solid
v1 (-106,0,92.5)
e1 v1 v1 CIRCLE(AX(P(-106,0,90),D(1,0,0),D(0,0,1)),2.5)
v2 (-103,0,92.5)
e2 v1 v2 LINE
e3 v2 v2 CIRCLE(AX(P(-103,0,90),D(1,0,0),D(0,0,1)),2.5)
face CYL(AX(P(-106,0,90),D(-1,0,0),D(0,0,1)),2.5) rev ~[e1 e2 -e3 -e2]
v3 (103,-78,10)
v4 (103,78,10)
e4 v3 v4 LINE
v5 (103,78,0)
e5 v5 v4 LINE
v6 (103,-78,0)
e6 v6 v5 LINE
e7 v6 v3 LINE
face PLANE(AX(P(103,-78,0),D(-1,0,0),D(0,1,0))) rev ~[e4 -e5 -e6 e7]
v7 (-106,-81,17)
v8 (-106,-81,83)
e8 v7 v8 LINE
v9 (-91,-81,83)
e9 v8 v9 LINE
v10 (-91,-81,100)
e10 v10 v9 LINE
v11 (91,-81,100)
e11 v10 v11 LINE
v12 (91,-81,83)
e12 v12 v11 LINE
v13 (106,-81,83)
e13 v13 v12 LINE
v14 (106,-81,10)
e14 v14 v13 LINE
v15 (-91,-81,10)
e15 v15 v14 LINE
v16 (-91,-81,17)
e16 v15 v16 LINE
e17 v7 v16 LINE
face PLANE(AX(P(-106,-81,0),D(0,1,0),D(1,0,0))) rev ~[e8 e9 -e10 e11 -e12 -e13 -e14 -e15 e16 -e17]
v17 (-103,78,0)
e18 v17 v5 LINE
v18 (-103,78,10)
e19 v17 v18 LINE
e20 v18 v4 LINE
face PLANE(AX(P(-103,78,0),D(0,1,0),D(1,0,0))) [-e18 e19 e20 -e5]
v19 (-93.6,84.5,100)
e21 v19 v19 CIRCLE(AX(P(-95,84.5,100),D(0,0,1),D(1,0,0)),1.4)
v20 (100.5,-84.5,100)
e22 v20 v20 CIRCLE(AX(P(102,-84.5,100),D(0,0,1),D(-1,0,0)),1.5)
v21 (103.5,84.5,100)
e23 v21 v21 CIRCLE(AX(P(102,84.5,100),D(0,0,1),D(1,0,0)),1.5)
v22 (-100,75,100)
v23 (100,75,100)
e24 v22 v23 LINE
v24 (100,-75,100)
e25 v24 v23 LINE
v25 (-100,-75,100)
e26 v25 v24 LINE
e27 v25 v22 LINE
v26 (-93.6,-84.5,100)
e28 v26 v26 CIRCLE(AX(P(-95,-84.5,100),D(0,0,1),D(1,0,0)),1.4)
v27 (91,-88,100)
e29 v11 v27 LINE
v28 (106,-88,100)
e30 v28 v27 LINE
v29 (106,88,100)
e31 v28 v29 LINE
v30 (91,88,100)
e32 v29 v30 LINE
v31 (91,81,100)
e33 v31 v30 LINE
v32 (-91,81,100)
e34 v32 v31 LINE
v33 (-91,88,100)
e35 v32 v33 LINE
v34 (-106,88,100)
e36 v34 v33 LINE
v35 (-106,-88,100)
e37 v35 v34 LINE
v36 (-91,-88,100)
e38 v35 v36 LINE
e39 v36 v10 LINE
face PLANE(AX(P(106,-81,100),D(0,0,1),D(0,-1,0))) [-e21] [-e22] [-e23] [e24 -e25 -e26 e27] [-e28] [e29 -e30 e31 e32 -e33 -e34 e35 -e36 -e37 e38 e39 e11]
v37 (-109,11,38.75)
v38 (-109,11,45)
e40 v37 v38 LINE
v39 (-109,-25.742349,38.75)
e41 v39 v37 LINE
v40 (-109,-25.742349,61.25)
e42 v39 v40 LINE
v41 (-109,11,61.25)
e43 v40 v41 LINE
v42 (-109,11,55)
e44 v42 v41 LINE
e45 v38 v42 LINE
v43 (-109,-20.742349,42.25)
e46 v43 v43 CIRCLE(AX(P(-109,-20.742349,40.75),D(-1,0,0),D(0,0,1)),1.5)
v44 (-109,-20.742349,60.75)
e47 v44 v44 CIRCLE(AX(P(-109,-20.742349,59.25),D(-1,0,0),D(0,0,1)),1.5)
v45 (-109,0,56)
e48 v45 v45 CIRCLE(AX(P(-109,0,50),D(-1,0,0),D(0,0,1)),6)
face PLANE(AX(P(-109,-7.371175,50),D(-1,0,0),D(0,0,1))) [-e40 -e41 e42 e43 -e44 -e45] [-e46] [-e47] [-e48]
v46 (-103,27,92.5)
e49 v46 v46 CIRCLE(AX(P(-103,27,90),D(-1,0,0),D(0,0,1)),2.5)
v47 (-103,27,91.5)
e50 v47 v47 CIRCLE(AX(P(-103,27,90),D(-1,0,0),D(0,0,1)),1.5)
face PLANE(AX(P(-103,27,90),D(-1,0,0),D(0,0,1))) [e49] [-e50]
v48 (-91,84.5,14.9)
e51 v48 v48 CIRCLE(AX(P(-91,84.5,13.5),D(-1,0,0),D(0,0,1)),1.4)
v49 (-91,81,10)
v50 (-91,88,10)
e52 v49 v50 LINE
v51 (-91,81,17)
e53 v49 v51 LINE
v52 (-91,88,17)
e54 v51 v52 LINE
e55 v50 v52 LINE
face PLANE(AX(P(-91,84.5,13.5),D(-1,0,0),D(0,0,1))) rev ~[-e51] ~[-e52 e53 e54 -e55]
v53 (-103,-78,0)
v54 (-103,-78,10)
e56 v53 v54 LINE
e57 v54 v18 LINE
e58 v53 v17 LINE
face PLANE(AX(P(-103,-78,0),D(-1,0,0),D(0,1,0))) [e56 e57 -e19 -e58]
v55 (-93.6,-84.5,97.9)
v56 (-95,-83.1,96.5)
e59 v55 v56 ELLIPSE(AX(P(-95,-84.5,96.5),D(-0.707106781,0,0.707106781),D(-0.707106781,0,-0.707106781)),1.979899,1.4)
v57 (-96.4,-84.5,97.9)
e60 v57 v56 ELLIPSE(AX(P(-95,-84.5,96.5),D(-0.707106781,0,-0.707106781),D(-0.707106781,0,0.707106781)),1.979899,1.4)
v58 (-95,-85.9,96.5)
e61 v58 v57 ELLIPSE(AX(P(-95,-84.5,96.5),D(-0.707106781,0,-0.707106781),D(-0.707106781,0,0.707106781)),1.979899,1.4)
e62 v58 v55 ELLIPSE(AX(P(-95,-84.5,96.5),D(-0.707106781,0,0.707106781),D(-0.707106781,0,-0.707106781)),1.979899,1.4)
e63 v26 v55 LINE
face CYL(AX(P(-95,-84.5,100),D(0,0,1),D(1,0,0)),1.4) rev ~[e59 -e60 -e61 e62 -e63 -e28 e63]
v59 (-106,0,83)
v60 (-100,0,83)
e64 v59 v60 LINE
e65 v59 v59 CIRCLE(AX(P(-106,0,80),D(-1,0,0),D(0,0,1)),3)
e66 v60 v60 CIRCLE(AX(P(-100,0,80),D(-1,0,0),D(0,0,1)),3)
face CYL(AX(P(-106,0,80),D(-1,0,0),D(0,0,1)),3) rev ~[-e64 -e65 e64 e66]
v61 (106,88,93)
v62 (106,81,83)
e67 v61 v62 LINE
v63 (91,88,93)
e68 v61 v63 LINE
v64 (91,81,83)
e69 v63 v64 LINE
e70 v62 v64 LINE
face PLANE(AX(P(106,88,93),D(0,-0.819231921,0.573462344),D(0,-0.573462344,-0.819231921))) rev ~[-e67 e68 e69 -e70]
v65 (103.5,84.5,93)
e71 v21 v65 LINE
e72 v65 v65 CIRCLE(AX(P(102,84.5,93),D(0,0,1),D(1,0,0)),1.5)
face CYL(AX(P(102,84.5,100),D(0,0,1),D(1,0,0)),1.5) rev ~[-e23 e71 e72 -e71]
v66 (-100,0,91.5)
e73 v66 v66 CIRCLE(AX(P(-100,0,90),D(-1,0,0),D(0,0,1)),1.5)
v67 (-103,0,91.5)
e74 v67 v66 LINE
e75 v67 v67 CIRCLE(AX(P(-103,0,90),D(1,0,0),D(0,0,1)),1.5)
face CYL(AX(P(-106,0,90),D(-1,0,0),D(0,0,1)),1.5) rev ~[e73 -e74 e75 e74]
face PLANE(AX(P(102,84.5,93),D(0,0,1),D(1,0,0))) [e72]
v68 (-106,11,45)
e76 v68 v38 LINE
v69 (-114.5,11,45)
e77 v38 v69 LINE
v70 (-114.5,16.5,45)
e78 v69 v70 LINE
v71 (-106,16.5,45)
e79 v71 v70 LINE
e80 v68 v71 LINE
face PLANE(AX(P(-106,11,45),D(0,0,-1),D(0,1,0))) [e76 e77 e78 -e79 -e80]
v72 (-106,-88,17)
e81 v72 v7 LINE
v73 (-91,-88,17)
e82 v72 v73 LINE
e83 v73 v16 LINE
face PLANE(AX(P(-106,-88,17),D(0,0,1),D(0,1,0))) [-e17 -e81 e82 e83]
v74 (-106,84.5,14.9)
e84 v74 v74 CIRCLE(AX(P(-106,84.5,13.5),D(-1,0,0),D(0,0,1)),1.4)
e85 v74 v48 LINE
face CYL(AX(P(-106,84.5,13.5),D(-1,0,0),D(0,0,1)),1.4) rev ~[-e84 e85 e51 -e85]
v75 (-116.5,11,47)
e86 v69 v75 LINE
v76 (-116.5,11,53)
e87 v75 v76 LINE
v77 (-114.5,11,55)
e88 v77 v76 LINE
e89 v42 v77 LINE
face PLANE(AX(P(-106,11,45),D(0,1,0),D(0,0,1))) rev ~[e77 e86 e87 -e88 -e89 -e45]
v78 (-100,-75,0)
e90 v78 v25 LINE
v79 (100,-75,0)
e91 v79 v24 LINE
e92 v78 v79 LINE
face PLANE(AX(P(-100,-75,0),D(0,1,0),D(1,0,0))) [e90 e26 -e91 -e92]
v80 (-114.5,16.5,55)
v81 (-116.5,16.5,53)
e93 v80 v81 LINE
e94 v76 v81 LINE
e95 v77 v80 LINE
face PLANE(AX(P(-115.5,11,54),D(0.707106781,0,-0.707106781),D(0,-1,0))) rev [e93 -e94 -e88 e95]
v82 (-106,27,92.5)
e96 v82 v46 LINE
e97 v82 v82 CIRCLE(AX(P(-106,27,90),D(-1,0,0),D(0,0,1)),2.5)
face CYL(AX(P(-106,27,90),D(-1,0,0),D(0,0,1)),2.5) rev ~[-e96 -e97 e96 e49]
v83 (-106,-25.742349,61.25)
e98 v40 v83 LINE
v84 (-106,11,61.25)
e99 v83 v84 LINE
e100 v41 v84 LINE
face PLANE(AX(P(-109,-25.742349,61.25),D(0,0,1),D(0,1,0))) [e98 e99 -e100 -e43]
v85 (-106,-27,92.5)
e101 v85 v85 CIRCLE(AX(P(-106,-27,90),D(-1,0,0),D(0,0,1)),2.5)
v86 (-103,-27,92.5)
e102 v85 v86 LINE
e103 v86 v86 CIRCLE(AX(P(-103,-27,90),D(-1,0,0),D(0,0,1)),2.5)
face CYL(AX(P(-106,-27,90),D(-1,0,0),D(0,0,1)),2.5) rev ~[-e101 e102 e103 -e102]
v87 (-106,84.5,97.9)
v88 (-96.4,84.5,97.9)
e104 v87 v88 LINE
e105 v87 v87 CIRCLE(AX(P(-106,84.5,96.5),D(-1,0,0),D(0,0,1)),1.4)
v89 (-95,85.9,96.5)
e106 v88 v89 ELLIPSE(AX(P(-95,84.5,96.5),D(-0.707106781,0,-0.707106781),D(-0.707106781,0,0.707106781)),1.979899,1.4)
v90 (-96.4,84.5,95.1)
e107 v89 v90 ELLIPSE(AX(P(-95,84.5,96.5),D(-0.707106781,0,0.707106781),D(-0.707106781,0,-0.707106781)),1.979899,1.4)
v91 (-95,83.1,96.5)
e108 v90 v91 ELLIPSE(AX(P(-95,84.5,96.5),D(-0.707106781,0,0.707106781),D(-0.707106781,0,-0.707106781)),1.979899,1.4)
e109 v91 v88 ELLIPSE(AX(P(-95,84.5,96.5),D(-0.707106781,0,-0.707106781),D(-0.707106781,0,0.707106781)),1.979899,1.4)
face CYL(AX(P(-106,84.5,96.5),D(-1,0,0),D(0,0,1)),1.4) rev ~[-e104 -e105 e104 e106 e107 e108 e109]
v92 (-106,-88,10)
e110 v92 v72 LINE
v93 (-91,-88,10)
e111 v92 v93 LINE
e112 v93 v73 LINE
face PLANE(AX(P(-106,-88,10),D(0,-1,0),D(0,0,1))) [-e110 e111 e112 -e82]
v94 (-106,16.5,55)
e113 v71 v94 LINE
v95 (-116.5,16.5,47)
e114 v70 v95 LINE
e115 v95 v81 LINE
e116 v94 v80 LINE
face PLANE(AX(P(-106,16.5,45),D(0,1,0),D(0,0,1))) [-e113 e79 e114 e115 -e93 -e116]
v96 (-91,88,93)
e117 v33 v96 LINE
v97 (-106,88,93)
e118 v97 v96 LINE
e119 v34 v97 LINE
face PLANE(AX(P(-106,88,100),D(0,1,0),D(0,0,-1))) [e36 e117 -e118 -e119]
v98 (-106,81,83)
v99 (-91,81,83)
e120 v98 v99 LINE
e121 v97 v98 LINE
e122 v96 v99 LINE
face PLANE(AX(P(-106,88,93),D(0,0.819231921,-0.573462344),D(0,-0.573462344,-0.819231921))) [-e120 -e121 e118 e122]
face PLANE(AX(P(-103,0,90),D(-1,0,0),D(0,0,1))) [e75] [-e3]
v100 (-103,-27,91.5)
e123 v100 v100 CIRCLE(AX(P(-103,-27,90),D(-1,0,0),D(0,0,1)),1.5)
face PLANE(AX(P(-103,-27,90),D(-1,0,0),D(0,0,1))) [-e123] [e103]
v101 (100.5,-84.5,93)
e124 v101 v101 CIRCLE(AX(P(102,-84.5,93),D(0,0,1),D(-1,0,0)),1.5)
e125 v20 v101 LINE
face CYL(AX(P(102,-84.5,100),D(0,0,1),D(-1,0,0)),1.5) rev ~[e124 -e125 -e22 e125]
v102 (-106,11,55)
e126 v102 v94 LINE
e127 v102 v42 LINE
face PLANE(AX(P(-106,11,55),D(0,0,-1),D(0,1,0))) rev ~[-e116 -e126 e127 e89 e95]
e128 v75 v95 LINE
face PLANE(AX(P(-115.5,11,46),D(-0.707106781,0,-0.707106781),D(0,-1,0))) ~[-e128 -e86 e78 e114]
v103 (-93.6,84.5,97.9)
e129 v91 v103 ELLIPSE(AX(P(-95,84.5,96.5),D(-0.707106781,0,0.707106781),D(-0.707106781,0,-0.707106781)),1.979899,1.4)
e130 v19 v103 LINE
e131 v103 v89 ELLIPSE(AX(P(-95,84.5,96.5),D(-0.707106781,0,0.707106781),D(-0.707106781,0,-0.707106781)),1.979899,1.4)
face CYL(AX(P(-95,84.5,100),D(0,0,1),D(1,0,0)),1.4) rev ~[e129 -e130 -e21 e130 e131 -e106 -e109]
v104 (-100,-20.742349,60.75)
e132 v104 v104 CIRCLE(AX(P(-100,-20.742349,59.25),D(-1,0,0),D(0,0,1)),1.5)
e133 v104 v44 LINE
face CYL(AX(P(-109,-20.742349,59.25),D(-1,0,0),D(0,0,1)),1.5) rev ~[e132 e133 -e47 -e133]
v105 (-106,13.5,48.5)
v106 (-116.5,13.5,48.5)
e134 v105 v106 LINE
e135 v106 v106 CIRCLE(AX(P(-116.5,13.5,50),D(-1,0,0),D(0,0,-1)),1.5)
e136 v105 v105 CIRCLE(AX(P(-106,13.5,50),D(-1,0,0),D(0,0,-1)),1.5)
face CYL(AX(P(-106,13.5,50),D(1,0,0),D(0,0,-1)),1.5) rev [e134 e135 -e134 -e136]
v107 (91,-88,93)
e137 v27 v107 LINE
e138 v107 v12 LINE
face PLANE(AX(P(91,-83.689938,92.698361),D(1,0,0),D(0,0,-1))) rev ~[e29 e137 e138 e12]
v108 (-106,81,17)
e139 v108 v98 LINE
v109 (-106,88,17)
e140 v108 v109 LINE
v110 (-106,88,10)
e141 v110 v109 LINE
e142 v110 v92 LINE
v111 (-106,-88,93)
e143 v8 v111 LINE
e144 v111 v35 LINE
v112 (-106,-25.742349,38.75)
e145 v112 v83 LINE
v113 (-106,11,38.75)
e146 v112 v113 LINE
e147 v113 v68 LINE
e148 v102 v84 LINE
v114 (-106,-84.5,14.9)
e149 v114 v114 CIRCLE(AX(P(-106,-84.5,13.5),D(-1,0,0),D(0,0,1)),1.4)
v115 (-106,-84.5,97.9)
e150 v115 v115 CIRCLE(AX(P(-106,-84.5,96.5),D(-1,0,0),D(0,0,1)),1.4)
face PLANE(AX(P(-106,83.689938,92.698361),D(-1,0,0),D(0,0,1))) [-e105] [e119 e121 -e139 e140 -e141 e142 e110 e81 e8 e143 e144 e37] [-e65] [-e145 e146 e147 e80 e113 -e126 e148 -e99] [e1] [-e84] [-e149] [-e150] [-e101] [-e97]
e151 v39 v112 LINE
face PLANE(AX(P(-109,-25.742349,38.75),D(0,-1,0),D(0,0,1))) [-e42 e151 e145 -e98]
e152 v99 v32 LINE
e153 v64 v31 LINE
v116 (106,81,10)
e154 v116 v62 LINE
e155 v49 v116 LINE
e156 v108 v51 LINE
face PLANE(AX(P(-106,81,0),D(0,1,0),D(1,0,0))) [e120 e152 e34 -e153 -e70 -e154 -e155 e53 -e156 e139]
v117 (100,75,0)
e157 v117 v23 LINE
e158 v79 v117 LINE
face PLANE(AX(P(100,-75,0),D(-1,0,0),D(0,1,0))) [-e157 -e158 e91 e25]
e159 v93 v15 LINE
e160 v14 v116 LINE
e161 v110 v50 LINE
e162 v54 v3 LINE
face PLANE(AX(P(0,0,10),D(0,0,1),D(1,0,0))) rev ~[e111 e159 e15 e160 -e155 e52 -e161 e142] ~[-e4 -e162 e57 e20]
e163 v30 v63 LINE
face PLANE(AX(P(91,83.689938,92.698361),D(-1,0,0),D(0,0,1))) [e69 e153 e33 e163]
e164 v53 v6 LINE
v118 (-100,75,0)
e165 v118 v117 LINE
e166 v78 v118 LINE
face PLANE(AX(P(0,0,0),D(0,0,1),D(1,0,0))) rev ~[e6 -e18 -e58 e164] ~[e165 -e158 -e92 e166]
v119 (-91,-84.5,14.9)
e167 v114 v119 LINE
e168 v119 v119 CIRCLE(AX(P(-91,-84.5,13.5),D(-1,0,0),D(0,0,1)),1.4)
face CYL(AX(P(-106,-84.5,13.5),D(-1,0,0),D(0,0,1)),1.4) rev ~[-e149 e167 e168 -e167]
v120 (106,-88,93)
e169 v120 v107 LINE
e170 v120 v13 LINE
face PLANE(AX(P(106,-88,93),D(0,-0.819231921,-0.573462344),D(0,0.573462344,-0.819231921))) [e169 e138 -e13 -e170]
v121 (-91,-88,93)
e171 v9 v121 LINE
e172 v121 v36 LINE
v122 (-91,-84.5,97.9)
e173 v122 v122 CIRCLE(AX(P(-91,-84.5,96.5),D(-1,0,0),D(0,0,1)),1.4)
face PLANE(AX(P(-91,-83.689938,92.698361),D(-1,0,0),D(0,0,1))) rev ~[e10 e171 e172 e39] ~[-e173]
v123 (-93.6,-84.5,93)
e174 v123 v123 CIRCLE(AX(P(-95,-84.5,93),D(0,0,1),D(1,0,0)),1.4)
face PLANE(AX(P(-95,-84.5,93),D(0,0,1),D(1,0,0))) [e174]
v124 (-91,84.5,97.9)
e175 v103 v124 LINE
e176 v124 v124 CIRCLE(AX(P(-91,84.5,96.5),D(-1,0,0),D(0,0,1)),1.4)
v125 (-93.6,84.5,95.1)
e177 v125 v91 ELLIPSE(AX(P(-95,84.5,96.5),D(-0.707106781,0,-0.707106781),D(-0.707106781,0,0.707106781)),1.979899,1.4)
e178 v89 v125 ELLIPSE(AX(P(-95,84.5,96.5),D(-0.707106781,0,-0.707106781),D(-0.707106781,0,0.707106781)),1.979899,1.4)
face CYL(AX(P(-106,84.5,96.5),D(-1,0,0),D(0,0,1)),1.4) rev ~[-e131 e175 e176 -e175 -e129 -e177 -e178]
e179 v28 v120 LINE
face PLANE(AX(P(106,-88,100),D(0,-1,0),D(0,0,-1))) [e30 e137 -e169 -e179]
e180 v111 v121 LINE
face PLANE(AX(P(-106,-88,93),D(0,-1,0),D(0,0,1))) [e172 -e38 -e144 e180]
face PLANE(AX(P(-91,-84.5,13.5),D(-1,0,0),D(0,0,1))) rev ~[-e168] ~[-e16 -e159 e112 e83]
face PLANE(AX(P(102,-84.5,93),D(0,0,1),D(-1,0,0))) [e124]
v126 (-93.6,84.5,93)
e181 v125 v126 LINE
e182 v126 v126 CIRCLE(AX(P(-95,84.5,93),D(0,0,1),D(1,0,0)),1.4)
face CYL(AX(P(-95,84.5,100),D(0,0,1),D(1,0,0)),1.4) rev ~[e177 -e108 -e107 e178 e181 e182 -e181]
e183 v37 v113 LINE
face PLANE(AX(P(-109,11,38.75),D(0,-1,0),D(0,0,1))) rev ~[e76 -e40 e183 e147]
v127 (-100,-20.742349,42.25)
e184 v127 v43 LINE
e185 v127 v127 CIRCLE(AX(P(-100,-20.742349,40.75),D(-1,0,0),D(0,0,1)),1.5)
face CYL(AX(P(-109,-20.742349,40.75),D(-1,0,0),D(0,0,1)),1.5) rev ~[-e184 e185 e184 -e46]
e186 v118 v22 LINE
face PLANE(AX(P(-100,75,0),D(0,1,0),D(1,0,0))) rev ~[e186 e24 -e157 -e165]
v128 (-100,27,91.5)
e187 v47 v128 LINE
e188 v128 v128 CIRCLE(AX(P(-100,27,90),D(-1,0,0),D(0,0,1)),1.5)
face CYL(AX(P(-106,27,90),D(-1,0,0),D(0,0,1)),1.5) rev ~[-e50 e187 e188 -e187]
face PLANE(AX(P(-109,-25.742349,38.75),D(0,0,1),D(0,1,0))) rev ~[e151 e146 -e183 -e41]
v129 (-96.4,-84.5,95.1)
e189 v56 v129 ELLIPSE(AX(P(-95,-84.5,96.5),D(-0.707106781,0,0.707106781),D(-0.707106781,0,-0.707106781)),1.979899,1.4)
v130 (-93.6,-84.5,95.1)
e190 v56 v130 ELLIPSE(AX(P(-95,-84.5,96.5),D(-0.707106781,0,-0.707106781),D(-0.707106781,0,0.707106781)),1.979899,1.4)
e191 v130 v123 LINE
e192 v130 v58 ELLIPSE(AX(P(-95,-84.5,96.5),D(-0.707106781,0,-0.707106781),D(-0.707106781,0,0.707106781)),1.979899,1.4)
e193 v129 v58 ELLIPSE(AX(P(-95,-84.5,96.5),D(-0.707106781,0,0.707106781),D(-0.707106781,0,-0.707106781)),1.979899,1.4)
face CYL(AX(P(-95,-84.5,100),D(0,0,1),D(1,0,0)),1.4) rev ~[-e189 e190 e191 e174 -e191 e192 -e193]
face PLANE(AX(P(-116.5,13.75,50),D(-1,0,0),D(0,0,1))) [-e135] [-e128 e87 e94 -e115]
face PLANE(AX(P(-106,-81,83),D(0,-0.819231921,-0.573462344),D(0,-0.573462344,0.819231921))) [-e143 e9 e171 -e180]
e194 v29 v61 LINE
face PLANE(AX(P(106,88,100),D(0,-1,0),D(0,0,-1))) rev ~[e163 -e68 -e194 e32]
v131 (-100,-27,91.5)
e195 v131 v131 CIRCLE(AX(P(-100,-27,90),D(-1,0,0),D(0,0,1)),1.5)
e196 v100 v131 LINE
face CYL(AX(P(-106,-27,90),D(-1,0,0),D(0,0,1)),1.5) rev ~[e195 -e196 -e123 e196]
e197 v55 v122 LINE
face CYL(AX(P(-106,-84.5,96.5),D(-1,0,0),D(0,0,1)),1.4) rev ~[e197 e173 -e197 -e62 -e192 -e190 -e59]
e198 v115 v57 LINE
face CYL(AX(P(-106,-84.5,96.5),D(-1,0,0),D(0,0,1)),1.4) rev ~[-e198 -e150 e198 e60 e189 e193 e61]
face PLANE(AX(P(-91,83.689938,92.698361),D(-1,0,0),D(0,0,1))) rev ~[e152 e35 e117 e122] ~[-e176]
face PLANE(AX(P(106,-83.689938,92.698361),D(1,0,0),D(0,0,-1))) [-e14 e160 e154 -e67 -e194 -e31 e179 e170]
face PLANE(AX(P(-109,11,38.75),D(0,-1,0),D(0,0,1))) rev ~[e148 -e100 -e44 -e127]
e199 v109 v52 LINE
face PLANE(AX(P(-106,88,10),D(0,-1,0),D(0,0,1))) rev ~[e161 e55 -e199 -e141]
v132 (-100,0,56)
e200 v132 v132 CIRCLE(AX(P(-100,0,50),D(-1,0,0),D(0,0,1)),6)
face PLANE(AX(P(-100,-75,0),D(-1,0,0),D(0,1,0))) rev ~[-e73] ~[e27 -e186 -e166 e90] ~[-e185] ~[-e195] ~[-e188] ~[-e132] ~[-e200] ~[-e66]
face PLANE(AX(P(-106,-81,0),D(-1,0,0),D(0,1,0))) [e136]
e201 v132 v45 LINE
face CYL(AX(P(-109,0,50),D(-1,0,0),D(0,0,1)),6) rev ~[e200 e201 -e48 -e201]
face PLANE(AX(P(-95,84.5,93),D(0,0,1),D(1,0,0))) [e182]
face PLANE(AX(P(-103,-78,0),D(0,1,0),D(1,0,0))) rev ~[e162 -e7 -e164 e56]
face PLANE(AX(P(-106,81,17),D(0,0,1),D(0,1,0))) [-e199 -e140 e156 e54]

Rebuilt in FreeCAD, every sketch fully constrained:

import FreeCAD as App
import Part
import Sketcher
from FreeCAD import Vector
Q = App.Units.Quantity


def edges_at(feature, points):
    """Names of the edges that pass closest to the given points."""
    edges = feature.Shape.Edges
    near = lambda p: min(range(len(edges)), key=lambda i: edges[i].distToShape(Part.Vertex(*p))[0])
    return sorted({f"Edge{near(p) + 1}" for p in points})

doc = App.newDocument("Part")
params = doc.addObject("Spreadsheet::Sheet", "Params")
for row, (alias, value) in enumerate([
    ("sketch1_width", "212 mm"),
    ("sketch1_width2", "200 mm"),
    ("sketch1_height", "162 mm"),
    ("sketch1_height2", "150 mm"),
    ("pad1_length", "100 mm"),
    ("sketch2_width", "212 mm"),
    ("sketch2_width2", "206 mm"),
    ("sketch2_height", "162 mm"),
    ("sketch2_height2", "156 mm"),
    ("pocket1_length", "10 mm"),
    ("sketch3_diameter", "3 mm"),
    ("sketch3_diameter2", "12 mm"),
    ("pocket2_length", "6 mm"),
    ("sketch4_diameter", "3 mm"),
    ("sketch4_height", "10 mm"),
    ("sketch4_width", "5.5 mm"),
    ("pad2_length", "10.5 mm"),
    ("chamfer_size", "2 mm"),
    ("sketch5_diameter", "3 mm"),
    ("sketch5_diameter2", "12 mm"),
    ("sketch5_height", "22.5 mm"),
    ("pad3_length", "3 mm"),
    ("sketch6_diameter", "3 mm"),
    ("sketch6_diameter2", "6 mm"),
    ("pocket3_length", "6 mm"),
    ("sketch7_diameter", "5 mm"),
    ("sketch7_diameter2", "3 mm"),
    ("pocket4_length", "3 mm"),
    ("sketch8_diameter", "2.8 mm"),
    ("sketch8_width", "7 mm"),
    ("sketch8_height", "17 mm"),
    ("pad4_length", "15 mm"),
    ("sketch9_width", "7 mm"),
    ("sketch9_height", "17 mm"),
    ("pad5_length", "15 mm"),
    ("sketch10_diameter", "3 mm"),
    ("sketch10_diameter2", "2.8 mm"),
    ("pocket5_length", "7 mm"),
], start=1):
    params.set(f"A{row}", alias)
    params.set(f"B{row}", "=" + value)
    params.setAlias(f"B{row}", alias)

body = doc.addObject("PartDesign::Body", "Body")

# Sketch on XY plane
sketch1 = body.newObject("Sketcher::SketchObject", "Sketch")
sketch1.AttachmentSupport = (doc.getObject("XY_Plane"), [""])
sketch1.MapMode = "FlatFace"
sketch1.addGeometry([
    Part.LineSegment(Vector(-106, 81, 0), Vector(-106, -81, 0)),  # 0
    Part.LineSegment(Vector(-106, -81, 0), Vector(106, -81, 0)),  # 1
    Part.LineSegment(Vector(106, -81, 0), Vector(106, 81, 0)),  # 2
    Part.LineSegment(Vector(106, 81, 0), Vector(-106, 81, 0)),  # 3
    Part.LineSegment(Vector(100, -75, 0), Vector(-100, -75, 0)),  # 4
    Part.LineSegment(Vector(-100, -75, 0), Vector(-100, 75, 0)),  # 5
    Part.LineSegment(Vector(-100, 75, 0), Vector(100, 75, 0)),  # 6
    Part.LineSegment(Vector(100, 75, 0), Vector(100, -75, 0)),  # 7
], False)
sketch1.addConstraint([
    Sketcher.Constraint("Coincident", 0, 2, 1, 1),
    Sketcher.Constraint("Coincident", 1, 2, 2, 1),
    Sketcher.Constraint("Coincident", 2, 2, 3, 1),
    Sketcher.Constraint("Coincident", 3, 2, 0, 1),
    Sketcher.Constraint("Coincident", 4, 2, 5, 1),
    Sketcher.Constraint("Coincident", 5, 2, 6, 1),
    Sketcher.Constraint("Coincident", 6, 2, 7, 1),
    Sketcher.Constraint("Coincident", 7, 2, 4, 1),
    Sketcher.Constraint("Vertical", 0),
    Sketcher.Constraint("Horizontal", 1),
    Sketcher.Constraint("Vertical", 2),
    Sketcher.Constraint("Horizontal", 3),
    Sketcher.Constraint("Horizontal", 4),
    Sketcher.Constraint("Vertical", 5),
    Sketcher.Constraint("Horizontal", 6),
    Sketcher.Constraint("Vertical", 7),
    Sketcher.Constraint("Symmetric", 0, 2, 2, 2, -1, 1),
    Sketcher.Constraint("Symmetric", 4, 2, 6, 2, -1, 1),
    Sketcher.Constraint("DistanceX", 1, 1, 1, 2, Q("212 mm")),
    Sketcher.Constraint("DistanceX", 4, 2, 4, 1, Q("200 mm")),
    Sketcher.Constraint("DistanceY", 0, 2, 0, 1, Q("162 mm")),
    Sketcher.Constraint("DistanceY", 5, 1, 5, 2, Q("150 mm")),
])
sketch1.setExpression("Constraints[18]", "Params.sketch1_width")
sketch1.setExpression("Constraints[19]", "Params.sketch1_width2")
sketch1.setExpression("Constraints[20]", "Params.sketch1_height")
sketch1.setExpression("Constraints[21]", "Params.sketch1_height2")
pad1 = body.newObject("PartDesign::Pad", "Pad")
pad1.Profile = sketch1
pad1.setExpression("Length", "Params.pad1_length")

# Sketch on XY plane
sketch2 = body.newObject("Sketcher::SketchObject", "Sketch001")
sketch2.AttachmentSupport = (doc.getObject("XY_Plane"), [""])
sketch2.MapMode = "FlatFace"
sketch2.addGeometry([
    Part.LineSegment(Vector(-106, 81, 0), Vector(-106, -81, 0)),  # 0
    Part.LineSegment(Vector(-106, -81, 0), Vector(106, -81, 0)),  # 1
    Part.LineSegment(Vector(106, -81, 0), Vector(106, 81, 0)),  # 2
    Part.LineSegment(Vector(106, 81, 0), Vector(-106, 81, 0)),  # 3
    Part.LineSegment(Vector(103, -78, 0), Vector(-103, -78, 0)),  # 4
    Part.LineSegment(Vector(-103, -78, 0), Vector(-103, 78, 0)),  # 5
    Part.LineSegment(Vector(-103, 78, 0), Vector(103, 78, 0)),  # 6
    Part.LineSegment(Vector(103, 78, 0), Vector(103, -78, 0)),  # 7
], False)
sketch2.addConstraint([
    Sketcher.Constraint("Coincident", 0, 2, 1, 1),
    Sketcher.Constraint("Coincident", 1, 2, 2, 1),
    Sketcher.Constraint("Coincident", 2, 2, 3, 1),
    Sketcher.Constraint("Coincident", 3, 2, 0, 1),
    Sketcher.Constraint("Coincident", 4, 2, 5, 1),
    Sketcher.Constraint("Coincident", 5, 2, 6, 1),
    Sketcher.Constraint("Coincident", 6, 2, 7, 1),
    Sketcher.Constraint("Coincident", 7, 2, 4, 1),
    Sketcher.Constraint("Vertical", 0),
    Sketcher.Constraint("Horizontal", 1),
    Sketcher.Constraint("Vertical", 2),
    Sketcher.Constraint("Horizontal", 3),
    Sketcher.Constraint("Horizontal", 4),
    Sketcher.Constraint("Vertical", 5),
    Sketcher.Constraint("Horizontal", 6),
    Sketcher.Constraint("Vertical", 7),
    Sketcher.Constraint("Symmetric", 0, 2, 2, 2, -1, 1),
    Sketcher.Constraint("Symmetric", 4, 2, 6, 2, -1, 1),
    Sketcher.Constraint("DistanceX", 1, 1, 1, 2, Q("212 mm")),
    Sketcher.Constraint("DistanceX", 4, 2, 4, 1, Q("206 mm")),
    Sketcher.Constraint("DistanceY", 0, 2, 0, 1, Q("162 mm")),
    Sketcher.Constraint("DistanceY", 5, 1, 5, 2, Q("156 mm")),
])
sketch2.setExpression("Constraints[18]", "Params.sketch2_width")
sketch2.setExpression("Constraints[19]", "Params.sketch2_width2")
sketch2.setExpression("Constraints[20]", "Params.sketch2_height")
sketch2.setExpression("Constraints[21]", "Params.sketch2_height2")
pocket1 = body.newObject("PartDesign::Pocket", "Pocket")
pocket1.Profile = sketch2
pocket1.setExpression("Length", "Params.pocket1_length")
pocket1.Reversed = True

# Sketch on YZ plane
sketch3 = body.newObject("Sketcher::SketchObject", "Sketch002")
sketch3.AttachmentSupport = (doc.getObject("YZ_Plane"), [""])
sketch3.MapMode = "FlatFace"
sketch3.AttachmentOffset = App.Placement(Vector(0, 0, -106), App.Rotation())
sketch3.addGeometry([
    Part.Circle(Vector(-20.7, 40.8, 0), Vector(0, 0, 1), 1.5),
    Part.Circle(Vector(-20.7, 59.2, 0), Vector(0, 0, 1), 1.5),
    Part.Circle(Vector(0, 50, 0), Vector(0, 0, 1), 6),
], False)
sketch3.addConstraint([
    Sketcher.Constraint("Equal", 0, 1),
    Sketcher.Constraint("PointOnObject", 2, 3, -2),
    Sketcher.Constraint("Vertical", 0, 3, 1, 3),
    Sketcher.Constraint("Diameter", 0, Q("3 mm")),
    Sketcher.Constraint("Diameter", 2, Q("12 mm")),
    Sketcher.Constraint("DistanceY", -1, 1, 2, 3, Q("50 mm")),
    Sketcher.Constraint("DistanceY", 0, 3, 1, 3, Q("18.5 mm")),
    Sketcher.Constraint("DistanceY", -1, 1, 0, 3, Q("40.75 mm")),
    Sketcher.Constraint("DistanceX", 0, 3, -1, 1, Q("20.742349 mm")),
])
sketch3.setExpression("Constraints[3]", "Params.sketch3_diameter")
sketch3.setExpression("Constraints[4]", "Params.sketch3_diameter2")
pocket2 = body.newObject("PartDesign::Pocket", "Pocket001")
pocket2.Profile = sketch3
pocket2.setExpression("Length", "Params.pocket2_length")
pocket2.Reversed = True

# Sketch on YZ plane
sketch4 = body.newObject("Sketcher::SketchObject", "Sketch003")
sketch4.AttachmentSupport = (doc.getObject("YZ_Plane"), [""])
sketch4.MapMode = "FlatFace"
sketch4.AttachmentOffset = App.Placement(Vector(0, 0, -106), App.Rotation())
sketch4.addGeometry([
    Part.LineSegment(Vector(16.5, 45, 0), Vector(11, 45, 0)),  # 0
    Part.LineSegment(Vector(11, 45, 0), Vector(11, 55, 0)),  # 1
    Part.LineSegment(Vector(11, 55, 0), Vector(16.5, 55, 0)),  # 2
    Part.LineSegment(Vector(16.5, 55, 0), Vector(16.5, 45, 0)),  # 3
    Part.Circle(Vector(13.5, 50, 0), Vector(0, 0, 1), 1.5),  # 4
], False)
sketch4.addConstraint([
    Sketcher.Constraint("Coincident", 0, 2, 1, 1),
    Sketcher.Constraint("Coincident", 1, 2, 2, 1),
    Sketcher.Constraint("Coincident", 2, 2, 3, 1),
    Sketcher.Constraint("Coincident", 3, 2, 0, 1),
    Sketcher.Constraint("Horizontal", 0),
    Sketcher.Constraint("Vertical", 1),
    Sketcher.Constraint("Horizontal", 2),
    Sketcher.Constraint("Vertical", 3),
    Sketcher.Constraint("Diameter", 4, Q("3 mm")),
    Sketcher.Constraint("DistanceY", 1, 1, 1, 2, Q("10 mm")),
    Sketcher.Constraint("DistanceX", 0, 2, 0, 1, Q("5.5 mm")),
    Sketcher.Constraint("DistanceY", -1, 1, 4, 3, Q("50 mm")),
    Sketcher.Constraint("DistanceX", -1, 1, 0, 2, Q("11 mm")),
    Sketcher.Constraint("DistanceY", -1, 1, 0, 2, Q("45 mm")),
    Sketcher.Constraint("DistanceX", 4, 3, 2, 2, Q("3 mm")),
])
sketch4.setExpression("Constraints[8]", "Params.sketch4_diameter")
sketch4.setExpression("Constraints[9]", "Params.sketch4_height")
sketch4.setExpression("Constraints[10]", "Params.sketch4_width")
pad2 = body.newObject("PartDesign::Pad", "Pad001")
pad2.Profile = sketch4
pad2.setExpression("Length", "Params.pad2_length")
pad2.Reversed = True
doc.recompute()

chamfer = body.newObject("PartDesign::Chamfer", "Chamfer")
chamfer.Base = (pad2, edges_at(pad2, [(-116.5, 13.75, 55), (-116.5, 13.75, 45)]))
chamfer.setExpression("Size", "Params.chamfer_size")

# Sketch on YZ plane
sketch5 = body.newObject("Sketcher::SketchObject", "Sketch004")
sketch5.AttachmentSupport = (doc.getObject("YZ_Plane"), [""])
sketch5.MapMode = "FlatFace"
sketch5.AttachmentOffset = App.Placement(Vector(0, 0, -109), App.Rotation())
sketch5.addGeometry([
    Part.LineSegment(Vector(11, 38.8, 0), Vector(-25.7, 38.8, 0)),  # 0
    Part.LineSegment(Vector(-25.7, 38.8, 0), Vector(-25.7, 61.2, 0)),  # 1
    Part.LineSegment(Vector(-25.7, 61.2, 0), Vector(11, 61.2, 0)),  # 2
    Part.LineSegment(Vector(11, 61.2, 0), Vector(11, 38.8, 0)),  # 3
    Part.Circle(Vector(-20.7, 40.8, 0), Vector(0, 0, 1), 1.5),  # 4
    Part.Circle(Vector(-20.7, 59.2, 0), Vector(0, 0, 1), 1.5),  # 5
    Part.Circle(Vector(0, 50, 0), Vector(0, 0, 1), 6),  # 6
], False)
sketch5.addConstraint([
    Sketcher.Constraint("Coincident", 0, 2, 1, 1),
    Sketcher.Constraint("Coincident", 1, 2, 2, 1),
    Sketcher.Constraint("Coincident", 2, 2, 3, 1),
    Sketcher.Constraint("Coincident", 3, 2, 0, 1),
    Sketcher.Constraint("Horizontal", 0),
    Sketcher.Constraint("Vertical", 1),
    Sketcher.Constraint("Horizontal", 2),
    Sketcher.Constraint("Vertical", 3),
    Sketcher.Constraint("Equal", 4, 5),
    Sketcher.Constraint("PointOnObject", 6, 3, -2),
    Sketcher.Constraint("Vertical", 4, 3, 5, 3),
    Sketcher.Constraint("Diameter", 4, Q("3 mm")),
    Sketcher.Constraint("Diameter", 6, Q("12 mm")),
    Sketcher.Constraint("DistanceY", 1, 1, 1, 2, Q("22.5 mm")),
    Sketcher.Constraint("DistanceY", -1, 1, 6, 3, Q("50 mm")),
    Sketcher.Constraint("DistanceX", -1, 1, 2, 2, Q("11 mm")),
    Sketcher.Constraint("DistanceX", 0, 2, 4, 3, Q("5 mm")),
    Sketcher.Constraint("DistanceY", 0, 2, 4, 3, Q("2 mm")),
    Sketcher.Constraint("DistanceY", 5, 3, 1, 2, Q("2 mm")),
    Sketcher.Constraint("DistanceY", -1, 1, 4, 3, Q("40.75 mm")),
    Sketcher.Constraint("DistanceX", 0, 2, 0, 1, Q("36.742349 mm")),
])
sketch5.setExpression("Constraints[11]", "Params.sketch5_diameter")
sketch5.setExpression("Constraints[12]", "Params.sketch5_diameter2")
sketch5.setExpression("Constraints[13]", "Params.sketch5_height")
pad3 = body.newObject("PartDesign::Pad", "Pad002")
pad3.Profile = sketch5
pad3.setExpression("Length", "Params.pad3_length")

# Sketch on YZ plane
sketch6 = body.newObject("Sketcher::SketchObject", "Sketch005")
sketch6.AttachmentSupport = (doc.getObject("YZ_Plane"), [""])
sketch6.MapMode = "FlatFace"
sketch6.AttachmentOffset = App.Placement(Vector(0, 0, -106), App.Rotation())
sketch6.addGeometry([
    Part.Circle(Vector(0, 90, 0), Vector(0, 0, 1), 1.5),
    Part.Circle(Vector(27, 90, 0), Vector(0, 0, 1), 1.5),
    Part.Circle(Vector(-27, 90, 0), Vector(0, 0, 1), 1.5),
    Part.Circle(Vector(0, 80, 0), Vector(0, 0, 1), 3),
], False)
sketch6.addConstraint([
    Sketcher.Constraint("Equal", 0, 1),
    Sketcher.Constraint("Equal", 1, 2),
    Sketcher.Constraint("Symmetric", 1, 3, 2, 3, -2),
    Sketcher.Constraint("PointOnObject", 0, 3, -2),
    Sketcher.Constraint("PointOnObject", 3, 3, -2),
    Sketcher.Constraint("Horizontal", 0, 3, 1, 3),
    Sketcher.Constraint("Diameter", 0, Q("3 mm")),
    Sketcher.Constraint("Diameter", 3, Q("6 mm")),
    Sketcher.Constraint("DistanceY", -1, 1, 0, 3, Q("90 mm")),
    Sketcher.Constraint("DistanceX", -1, 1, 1, 3, Q("27 mm")),
    Sketcher.Constraint("DistanceY", -1, 1, 3, 3, Q("80 mm")),
])
sketch6.setExpression("Constraints[6]", "Params.sketch6_diameter")
sketch6.setExpression("Constraints[7]", "Params.sketch6_diameter2")
pocket3 = body.newObject("PartDesign::Pocket", "Pocket002")
pocket3.Profile = sketch6
pocket3.setExpression("Length", "Params.pocket3_length")
pocket3.Reversed = True

# Sketch on YZ plane
sketch7 = body.newObject("Sketcher::SketchObject", "Sketch006")
sketch7.AttachmentSupport = (doc.getObject("YZ_Plane"), [""])
sketch7.MapMode = "FlatFace"
sketch7.AttachmentOffset = App.Placement(Vector(0, 0, -106), App.Rotation())
sketch7.addGeometry([
    Part.Circle(Vector(27, 90, 0), Vector(0, 0, 1), 2.5),  # 0
    Part.Circle(Vector(27, 90, 0), Vector(0, 0, 1), 1.5),  # 1
    Part.Circle(Vector(0, 90, 0), Vector(0, 0, 1), 2.5),  # 2
    Part.Circle(Vector(0, 90, 0), Vector(0, 0, 1), 1.5),  # 3
    Part.Circle(Vector(-27, 90, 0), Vector(0, 0, 1), 2.5),  # 4
    Part.Circle(Vector(-27, 90, 0), Vector(0, 0, 1), 1.5),  # 5
], False)
sketch7.addConstraint([
    Sketcher.Constraint("Coincident", 1, 3, 0, 3),
    Sketcher.Constraint("Coincident", 3, 3, 2, 3),
    Sketcher.Constraint("Coincident", 5, 3, 4, 3),
    Sketcher.Constraint("Equal", 0, 2),
    Sketcher.Constraint("Equal", 1, 3),
    Sketcher.Constraint("Equal", 2, 4),
    Sketcher.Constraint("Equal", 3, 5),
    Sketcher.Constraint("Symmetric", 0, 3, 4, 3, -2),
    Sketcher.Constraint("PointOnObject", 2, 3, -2),
    Sketcher.Constraint("Horizontal", 1, 3, 2, 3),
    Sketcher.Constraint("Diameter", 0, Q("5 mm")),
    Sketcher.Constraint("Diameter", 1, Q("3 mm")),
    Sketcher.Constraint("DistanceX", -1, 1, 0, 3, Q("27 mm")),
    Sketcher.Constraint("DistanceY", -1, 1, 0, 3, Q("90 mm")),
])
sketch7.setExpression("Constraints[10]", "Params.sketch7_diameter")
sketch7.setExpression("Constraints[11]", "Params.sketch7_diameter2")
pocket4 = body.newObject("PartDesign::Pocket", "Pocket003")
pocket4.Profile = sketch7
pocket4.setExpression("Length", "Params.pocket4_length")
pocket4.Reversed = True

# Sketch on YZ plane
sketch8 = body.newObject("Sketcher::SketchObject", "Sketch007")
sketch8.AttachmentSupport = (doc.getObject("YZ_Plane"), [""])
sketch8.MapMode = "FlatFace"
sketch8.AttachmentOffset = App.Placement(Vector(0, 0, -106), App.Rotation())
sketch8.addGeometry([
    Part.LineSegment(Vector(88, 93, 0), Vector(81, 83, 0)),  # 0
    Part.LineSegment(Vector(81, 83, 0), Vector(81, 100, 0)),  # 1
    Part.LineSegment(Vector(81, 100, 0), Vector(88, 100, 0)),  # 2
    Part.LineSegment(Vector(88, 100, 0), Vector(88, 93, 0)),  # 3
    Part.Circle(Vector(84.5, 96.5, 0), Vector(0, 0, 1), 1.4),  # 4
    Part.LineSegment(Vector(88, 10, 0), Vector(81, 10, 0)),  # 5
    Part.LineSegment(Vector(81, 10, 0), Vector(81, 17, 0)),  # 6
    Part.LineSegment(Vector(81, 17, 0), Vector(88, 17, 0)),  # 7
    Part.LineSegment(Vector(88, 17, 0), Vector(88, 10, 0)),  # 8
    Part.Circle(Vector(84.5, 13.5, 0), Vector(0, 0, 1), 1.4),  # 9
    Part.LineSegment(Vector(-81, 10, 0), Vector(-88, 10, 0)),  # 10
    Part.LineSegment(Vector(-88, 10, 0), Vector(-88, 17, 0)),  # 11
    Part.LineSegment(Vector(-88, 17, 0), Vector(-81, 17, 0)),  # 12
    Part.LineSegment(Vector(-81, 17, 0), Vector(-81, 10, 0)),  # 13
    Part.Circle(Vector(-84.5, 13.5, 0), Vector(0, 0, 1), 1.4),  # 14
    Part.LineSegment(Vector(-81, 83, 0), Vector(-88, 93, 0)),  # 15
    Part.LineSegment(Vector(-88, 93, 0), Vector(-88, 100, 0)),  # 16
    Part.LineSegment(Vector(-88, 100, 0), Vector(-81, 100, 0)),  # 17
    Part.LineSegment(Vector(-81, 100, 0), Vector(-81, 83, 0)),  # 18
    Part.Circle(Vector(-84.5, 96.5, 0), Vector(0, 0, 1), 1.4),  # 19
], False)
sketch8.addConstraint([
    Sketcher.Constraint("Coincident", 0, 2, 1, 1),
    Sketcher.Constraint("Coincident", 1, 2, 2, 1),
    Sketcher.Constraint("Coincident", 2, 2, 3, 1),
    Sketcher.Constraint("Coincident", 3, 2, 0, 1),
    Sketcher.Constraint("Coincident", 5, 2, 6, 1),
    Sketcher.Constraint("Coincident", 6, 2, 7, 1),
    Sketcher.Constraint("Coincident", 7, 2, 8, 1),
    Sketcher.Constraint("Coincident", 8, 2, 5, 1),
    Sketcher.Constraint("Coincident", 10, 2, 11, 1),
    Sketcher.Constraint("Coincident", 11, 2, 12, 1),
    Sketcher.Constraint("Coincident", 12, 2, 13, 1),
    Sketcher.Constraint("Coincident", 13, 2, 10, 1),
    Sketcher.Constraint("Coincident", 15, 2, 16, 1),
    Sketcher.Constraint("Coincident", 16, 2, 17, 1),
    Sketcher.Constraint("Coincident", 17, 2, 18, 1),
    Sketcher.Constraint("Coincident", 18, 2, 15, 1),
    Sketcher.Constraint("Vertical", 1),
    Sketcher.Constraint("Horizontal", 2),
    Sketcher.Constraint("Vertical", 3),
    Sketcher.Constraint("Horizontal", 5),
    Sketcher.Constraint("Vertical", 6),
    Sketcher.Constraint("Horizontal", 7),
    Sketcher.Constraint("Vertical", 8),
    Sketcher.Constraint("Horizontal", 10),
    Sketcher.Constraint("Vertical", 11),
    Sketcher.Constraint("Horizontal", 12),
    Sketcher.Constraint("Vertical", 13),
    Sketcher.Constraint("Vertical", 16),
    Sketcher.Constraint("Horizontal", 17),
    Sketcher.Constraint("Vertical", 18),
    Sketcher.Constraint("Equal", 4, 9),
    Sketcher.Constraint("Equal", 9, 14),
    Sketcher.Constraint("Equal", 14, 19),
    Sketcher.Constraint("Symmetric", 9, 3, 14, 3, -2),
    Sketcher.Constraint("Symmetric", 4, 3, 19, 3, -2),
    Sketcher.Constraint("Symmetric", 8, 2, 10, 2, -2),
    Sketcher.Constraint("Symmetric", 6, 2, 12, 2, -2),
    Sketcher.Constraint("Symmetric", 3, 2, 15, 2, -2),
    Sketcher.Constraint("Symmetric", 1, 2, 17, 2, -2),
    Sketcher.Constraint("Horizontal", 0, 2, 18, 2),
    Sketcher.Constraint("Vertical", 4, 3, 9, 3),
    Sketcher.Constraint("Vertical", 1, 2, 5, 2),
    Sketcher.Constraint("Vertical", 3, 2, 7, 2),
    Sketcher.Constraint("Equal", 17, 3),
    Sketcher.Constraint("Equal", 3, 6),
    Sketcher.Constraint("Diameter", 4, Q("2.8 mm")),
    Sketcher.Constraint("DistanceX", 2, 1, 2, 2, Q("7 mm")),
    Sketcher.Constraint("DistanceY", 1, 1, 1, 2, Q("17 mm")),
    Sketcher.Constraint("DistanceX", -1, 1, 0, 2, Q("81 mm")),
    Sketcher.Constraint("DistanceY", -1, 1, 0, 2, Q("83 mm")),
    Sketcher.Constraint("DistanceY", -1, 1, 5, 2, Q("10 mm")),
    Sketcher.Constraint("DistanceY", 9, 3, 4, 3, Q("83 mm")),
    Sketcher.Constraint("DistanceX", 14, 3, 9, 3, Q("169 mm")),
    Sketcher.Constraint("DistanceY", -1, 1, 4, 3, Q("96.5 mm")),
])
sketch8.setExpression("Constraints[45]", "Params.sketch8_diameter")
sketch8.setExpression("Constraints[46]", "Params.sketch8_width")
sketch8.setExpression("Constraints[47]", "Params.sketch8_height")
pad4 = body.newObject("PartDesign::Pad", "Pad003")
pad4.Profile = sketch8
pad4.setExpression("Length", "Params.pad4_length")

# Sketch on YZ plane
sketch9 = body.newObject("Sketcher::SketchObject", "Sketch008")
sketch9.AttachmentSupport = (doc.getObject("YZ_Plane"), [""])
sketch9.MapMode = "FlatFace"
sketch9.AttachmentOffset = App.Placement(Vector(0, 0, 106), App.Rotation())
sketch9.addGeometry([
    Part.LineSegment(Vector(-81, 100, 0), Vector(-88, 100, 0)),  # 0
    Part.LineSegment(Vector(-88, 100, 0), Vector(-88, 93, 0)),  # 1
    Part.LineSegment(Vector(-88, 93, 0), Vector(-81, 83, 0)),  # 2
    Part.LineSegment(Vector(-81, 83, 0), Vector(-81, 100, 0)),  # 3
    Part.LineSegment(Vector(88, 100, 0), Vector(81, 100, 0)),  # 4
    Part.LineSegment(Vector(81, 100, 0), Vector(81, 83, 0)),  # 5
    Part.LineSegment(Vector(81, 83, 0), Vector(88, 93, 0)),  # 6
    Part.LineSegment(Vector(88, 93, 0), Vector(88, 100, 0)),  # 7
], False)
sketch9.addConstraint([
    Sketcher.Constraint("Coincident", 0, 2, 1, 1),
    Sketcher.Constraint("Coincident", 1, 2, 2, 1),
    Sketcher.Constraint("Coincident", 2, 2, 3, 1),
    Sketcher.Constraint("Coincident", 3, 2, 0, 1),
    Sketcher.Constraint("Coincident", 4, 2, 5, 1),
    Sketcher.Constraint("Coincident", 5, 2, 6, 1),
    Sketcher.Constraint("Coincident", 6, 2, 7, 1),
    Sketcher.Constraint("Coincident", 7, 2, 4, 1),
    Sketcher.Constraint("Horizontal", 0),
    Sketcher.Constraint("Vertical", 1),
    Sketcher.Constraint("Vertical", 3),
    Sketcher.Constraint("Horizontal", 4),
    Sketcher.Constraint("Vertical", 5),
    Sketcher.Constraint("Vertical", 7),
    Sketcher.Constraint("Symmetric", 3, 2, 4, 2, -2),
    Sketcher.Constraint("Symmetric", 1, 2, 6, 2, -2),
    Sketcher.Constraint("Horizontal", 2, 2, 5, 2),
    Sketcher.Constraint("Equal", 4, 1),
    Sketcher.Constraint("DistanceX", 0, 2, 0, 1, Q("7 mm")),
    Sketcher.Constraint("DistanceY", 3, 1, 3, 2, Q("17 mm")),
    Sketcher.Constraint("DistanceX", 0, 2, -1, 1, Q("88 mm")),
    Sketcher.Constraint("DistanceY", -1, 1, 0, 2, Q("100 mm")),
])
sketch9.setExpression("Constraints[18]", "Params.sketch9_width")
sketch9.setExpression("Constraints[19]", "Params.sketch9_height")
pad5 = body.newObject("PartDesign::Pad", "Pad004")
pad5.Profile = sketch9
pad5.setExpression("Length", "Params.pad5_length")
pad5.Reversed = True

# Sketch on XY plane
sketch10 = body.newObject("Sketcher::SketchObject", "Sketch009")
sketch10.AttachmentSupport = (doc.getObject("XY_Plane"), [""])
sketch10.MapMode = "FlatFace"
sketch10.AttachmentOffset = App.Placement(Vector(0, 0, 100), App.Rotation())
sketch10.addGeometry([
    Part.Circle(Vector(-95, 84.5, 0), Vector(0, 0, 1), 1.4),
    Part.Circle(Vector(-95, -84.5, 0), Vector(0, 0, 1), 1.4),
    Part.Circle(Vector(102, 84.5, 0), Vector(0, 0, 1), 1.5),
    Part.Circle(Vector(102, -84.5, 0), Vector(0, 0, 1), 1.5),
], False)
sketch10.addConstraint([
    Sketcher.Constraint("Equal", 0, 1),
    Sketcher.Constraint("Equal", 2, 3),
    Sketcher.Constraint("Symmetric", 0, 3, 1, 3, -1),
    Sketcher.Constraint("Symmetric", 2, 3, 3, 3, -1),
    Sketcher.Constraint("Horizontal", 0, 3, 2, 3),
    Sketcher.Constraint("Diameter", 2, Q("3 mm")),
    Sketcher.Constraint("Diameter", 0, Q("2.8 mm")),
    Sketcher.Constraint("DistanceX", 0, 3, -1, 1, Q("95 mm")),
    Sketcher.Constraint("DistanceX", -1, 1, 2, 3, Q("102 mm")),
    Sketcher.Constraint("DistanceY", 1, 3, 0, 3, Q("169 mm")),
])
sketch10.setExpression("Constraints[5]", "Params.sketch10_diameter")
sketch10.setExpression("Constraints[6]", "Params.sketch10_diameter2")
pocket5 = body.newObject("PartDesign::Pocket", "Pocket004")
pocket5.Profile = sketch10
pocket5.setExpression("Length", "Params.pocket5_length")

doc.recompute()
